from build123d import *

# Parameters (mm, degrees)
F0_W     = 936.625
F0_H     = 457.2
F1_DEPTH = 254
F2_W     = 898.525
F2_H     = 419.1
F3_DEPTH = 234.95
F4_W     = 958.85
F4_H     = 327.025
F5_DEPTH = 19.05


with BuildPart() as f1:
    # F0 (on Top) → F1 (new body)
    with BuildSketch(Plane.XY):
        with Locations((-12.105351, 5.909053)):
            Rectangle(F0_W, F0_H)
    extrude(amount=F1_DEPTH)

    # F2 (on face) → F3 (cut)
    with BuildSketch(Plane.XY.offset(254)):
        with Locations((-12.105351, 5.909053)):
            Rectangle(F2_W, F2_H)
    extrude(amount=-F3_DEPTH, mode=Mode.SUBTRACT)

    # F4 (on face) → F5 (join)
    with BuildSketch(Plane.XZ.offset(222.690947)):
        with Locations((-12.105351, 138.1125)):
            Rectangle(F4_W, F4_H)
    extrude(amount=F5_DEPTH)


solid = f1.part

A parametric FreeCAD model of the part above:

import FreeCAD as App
import Part
import Sketcher
from FreeCAD import Vector
Q = App.Units.Quantity

doc = App.newDocument("Part")
body = doc.addObject("PartDesign::Body", "Body")

sketch1 = body.newObject("Sketcher::SketchObject", "Sketch")
sketch1.AttachmentSupport = (doc.getObject("XY_Plane"), [""])
sketch1.MapMode = "FlatFace"
sketch1.addGeometry([
    Part.LineSegment(Vector(-480, 235, 0), Vector(-480, -223, 0)),
    Part.LineSegment(Vector(-480, -223, 0), Vector(456, -223, 0)),
    Part.LineSegment(Vector(456, -223, 0), Vector(456, 235, 0)),
    Part.LineSegment(Vector(456, 235, 0), Vector(-480, 235, 0)),
], False)
sketch1.addConstraint([
    Sketcher.Constraint("Coincident", 0, 2, 1, 1),
    Sketcher.Constraint("Coincident", 1, 2, 2, 1),
    Sketcher.Constraint("Coincident", 2, 2, 3, 1),
    Sketcher.Constraint("Coincident", 3, 2, 0, 1),
    Sketcher.Constraint("Vertical", 0),
    Sketcher.Constraint("Horizontal", 1),
    Sketcher.Constraint("Vertical", 2),
    Sketcher.Constraint("Horizontal", 3),
    Sketcher.Constraint("DistanceY", 0, 2, 0, 1, Q("18 in")),
    Sketcher.Constraint("DistanceX", 1, 1, 1, 2, Q("36.875 in")),
    Sketcher.Constraint("DistanceX", 0, 2, -1, 1, Q("480.417851 mm")),
    Sketcher.Constraint("DistanceY", 0, 2, -1, 1, Q("222.690947 mm")),
])
pad1 = body.newObject("PartDesign::Pad", "Pad")
pad1.Profile = sketch1
pad1.Length = Q("10 in")

sketch2 = body.newObject("Sketcher::SketchObject", "Sketch001")
sketch2.AttachmentSupport = (doc.getObject("XY_Plane"), [""])
sketch2.MapMode = "FlatFace"
sketch2.AttachmentOffset = App.Placement(Vector(0, 0, 10 * 25.4), App.Rotation())
sketch2.addGeometry([
    Part.LineSegment(Vector(-461, 215, 0), Vector(-461, -204, 0)),
    Part.LineSegment(Vector(-461, -204, 0), Vector(437, -204, 0)),
    Part.LineSegment(Vector(437, -204, 0), Vector(437, 215, 0)),
    Part.LineSegment(Vector(437, 215, 0), Vector(-461, 215, 0)),
], False)
sketch2.addConstraint([
    Sketcher.Constraint("Coincident", 0, 2, 1, 1),
    Sketcher.Constraint("Coincident", 1, 2, 2, 1),
    Sketcher.Constraint("Coincident", 2, 2, 3, 1),
    Sketcher.Constraint("Coincident", 3, 2, 0, 1),
    Sketcher.Constraint("Vertical", 0),
    Sketcher.Constraint("Horizontal", 1),
    Sketcher.Constraint("Vertical", 2),
    Sketcher.Constraint("Horizontal", 3),
    Sketcher.Constraint("DistanceY", 0, 2, 0, 1, Q("16.5 in")),
    Sketcher.Constraint("DistanceX", 1, 1, 1, 2, Q("35.375 in")),
    Sketcher.Constraint("DistanceX", 0, 2, -1, 1, Q("461.367851 mm")),
    Sketcher.Constraint("DistanceY", 0, 2, -1, 1, Q("203.640947 mm")),
])
pocket1 = body.newObject("PartDesign::Pocket", "Pocket")
pocket1.Profile = sketch2
pocket1.Length = Q("9.25 in")

sketch3 = body.newObject("Sketcher::SketchObject", "Sketch002")
sketch3.AttachmentSupport = (doc.getObject("XZ_Plane"), [""])
sketch3.MapMode = "FlatFace"
sketch3.AttachmentOffset = App.Placement(Vector(0, 0, 222.690947), App.Rotation())
sketch3.addGeometry([
    Part.LineSegment(Vector(-492, 302, 0), Vector(-492, -25, 0)),
    Part.LineSegment(Vector(-492, -25, 0), Vector(467, -25, 0)),
    Part.LineSegment(Vector(467, -25, 0), Vector(467, 302, 0)),
    Part.LineSegment(Vector(467, 302, 0), Vector(-492, 302, 0)),
], False)
sketch3.addConstraint([
    Sketcher.Constraint("Coincident", 0, 2, 1, 1),
    Sketcher.Constraint("Coincident", 1, 2, 2, 1),
    Sketcher.Constraint("Coincident", 2, 2, 3, 1),
    Sketcher.Constraint("Coincident", 3, 2, 0, 1),
    Sketcher.Constraint("Vertical", 0),
    Sketcher.Constraint("Horizontal", 1),
    Sketcher.Constraint("Vertical", 2),
    Sketcher.Constraint("Horizontal", 3),
    Sketcher.Constraint("DistanceY", 0, 2, -1, 1, Q("1 in")),
    Sketcher.Constraint("DistanceX", 1, 1, 1, 2, Q("37.75 in")),
    Sketcher.Constraint("DistanceY", 0, 2, 0, 1, Q("12.875 in")),
    Sketcher.Constraint("DistanceX", 0, 2, -1, 1, Q("491.530351 mm")),
])
pad2 = body.newObject("PartDesign::Pad", "Pad001")
pad2.Profile = sketch3
pad2.Length = Q("0.75 in")

doc.recompute()
